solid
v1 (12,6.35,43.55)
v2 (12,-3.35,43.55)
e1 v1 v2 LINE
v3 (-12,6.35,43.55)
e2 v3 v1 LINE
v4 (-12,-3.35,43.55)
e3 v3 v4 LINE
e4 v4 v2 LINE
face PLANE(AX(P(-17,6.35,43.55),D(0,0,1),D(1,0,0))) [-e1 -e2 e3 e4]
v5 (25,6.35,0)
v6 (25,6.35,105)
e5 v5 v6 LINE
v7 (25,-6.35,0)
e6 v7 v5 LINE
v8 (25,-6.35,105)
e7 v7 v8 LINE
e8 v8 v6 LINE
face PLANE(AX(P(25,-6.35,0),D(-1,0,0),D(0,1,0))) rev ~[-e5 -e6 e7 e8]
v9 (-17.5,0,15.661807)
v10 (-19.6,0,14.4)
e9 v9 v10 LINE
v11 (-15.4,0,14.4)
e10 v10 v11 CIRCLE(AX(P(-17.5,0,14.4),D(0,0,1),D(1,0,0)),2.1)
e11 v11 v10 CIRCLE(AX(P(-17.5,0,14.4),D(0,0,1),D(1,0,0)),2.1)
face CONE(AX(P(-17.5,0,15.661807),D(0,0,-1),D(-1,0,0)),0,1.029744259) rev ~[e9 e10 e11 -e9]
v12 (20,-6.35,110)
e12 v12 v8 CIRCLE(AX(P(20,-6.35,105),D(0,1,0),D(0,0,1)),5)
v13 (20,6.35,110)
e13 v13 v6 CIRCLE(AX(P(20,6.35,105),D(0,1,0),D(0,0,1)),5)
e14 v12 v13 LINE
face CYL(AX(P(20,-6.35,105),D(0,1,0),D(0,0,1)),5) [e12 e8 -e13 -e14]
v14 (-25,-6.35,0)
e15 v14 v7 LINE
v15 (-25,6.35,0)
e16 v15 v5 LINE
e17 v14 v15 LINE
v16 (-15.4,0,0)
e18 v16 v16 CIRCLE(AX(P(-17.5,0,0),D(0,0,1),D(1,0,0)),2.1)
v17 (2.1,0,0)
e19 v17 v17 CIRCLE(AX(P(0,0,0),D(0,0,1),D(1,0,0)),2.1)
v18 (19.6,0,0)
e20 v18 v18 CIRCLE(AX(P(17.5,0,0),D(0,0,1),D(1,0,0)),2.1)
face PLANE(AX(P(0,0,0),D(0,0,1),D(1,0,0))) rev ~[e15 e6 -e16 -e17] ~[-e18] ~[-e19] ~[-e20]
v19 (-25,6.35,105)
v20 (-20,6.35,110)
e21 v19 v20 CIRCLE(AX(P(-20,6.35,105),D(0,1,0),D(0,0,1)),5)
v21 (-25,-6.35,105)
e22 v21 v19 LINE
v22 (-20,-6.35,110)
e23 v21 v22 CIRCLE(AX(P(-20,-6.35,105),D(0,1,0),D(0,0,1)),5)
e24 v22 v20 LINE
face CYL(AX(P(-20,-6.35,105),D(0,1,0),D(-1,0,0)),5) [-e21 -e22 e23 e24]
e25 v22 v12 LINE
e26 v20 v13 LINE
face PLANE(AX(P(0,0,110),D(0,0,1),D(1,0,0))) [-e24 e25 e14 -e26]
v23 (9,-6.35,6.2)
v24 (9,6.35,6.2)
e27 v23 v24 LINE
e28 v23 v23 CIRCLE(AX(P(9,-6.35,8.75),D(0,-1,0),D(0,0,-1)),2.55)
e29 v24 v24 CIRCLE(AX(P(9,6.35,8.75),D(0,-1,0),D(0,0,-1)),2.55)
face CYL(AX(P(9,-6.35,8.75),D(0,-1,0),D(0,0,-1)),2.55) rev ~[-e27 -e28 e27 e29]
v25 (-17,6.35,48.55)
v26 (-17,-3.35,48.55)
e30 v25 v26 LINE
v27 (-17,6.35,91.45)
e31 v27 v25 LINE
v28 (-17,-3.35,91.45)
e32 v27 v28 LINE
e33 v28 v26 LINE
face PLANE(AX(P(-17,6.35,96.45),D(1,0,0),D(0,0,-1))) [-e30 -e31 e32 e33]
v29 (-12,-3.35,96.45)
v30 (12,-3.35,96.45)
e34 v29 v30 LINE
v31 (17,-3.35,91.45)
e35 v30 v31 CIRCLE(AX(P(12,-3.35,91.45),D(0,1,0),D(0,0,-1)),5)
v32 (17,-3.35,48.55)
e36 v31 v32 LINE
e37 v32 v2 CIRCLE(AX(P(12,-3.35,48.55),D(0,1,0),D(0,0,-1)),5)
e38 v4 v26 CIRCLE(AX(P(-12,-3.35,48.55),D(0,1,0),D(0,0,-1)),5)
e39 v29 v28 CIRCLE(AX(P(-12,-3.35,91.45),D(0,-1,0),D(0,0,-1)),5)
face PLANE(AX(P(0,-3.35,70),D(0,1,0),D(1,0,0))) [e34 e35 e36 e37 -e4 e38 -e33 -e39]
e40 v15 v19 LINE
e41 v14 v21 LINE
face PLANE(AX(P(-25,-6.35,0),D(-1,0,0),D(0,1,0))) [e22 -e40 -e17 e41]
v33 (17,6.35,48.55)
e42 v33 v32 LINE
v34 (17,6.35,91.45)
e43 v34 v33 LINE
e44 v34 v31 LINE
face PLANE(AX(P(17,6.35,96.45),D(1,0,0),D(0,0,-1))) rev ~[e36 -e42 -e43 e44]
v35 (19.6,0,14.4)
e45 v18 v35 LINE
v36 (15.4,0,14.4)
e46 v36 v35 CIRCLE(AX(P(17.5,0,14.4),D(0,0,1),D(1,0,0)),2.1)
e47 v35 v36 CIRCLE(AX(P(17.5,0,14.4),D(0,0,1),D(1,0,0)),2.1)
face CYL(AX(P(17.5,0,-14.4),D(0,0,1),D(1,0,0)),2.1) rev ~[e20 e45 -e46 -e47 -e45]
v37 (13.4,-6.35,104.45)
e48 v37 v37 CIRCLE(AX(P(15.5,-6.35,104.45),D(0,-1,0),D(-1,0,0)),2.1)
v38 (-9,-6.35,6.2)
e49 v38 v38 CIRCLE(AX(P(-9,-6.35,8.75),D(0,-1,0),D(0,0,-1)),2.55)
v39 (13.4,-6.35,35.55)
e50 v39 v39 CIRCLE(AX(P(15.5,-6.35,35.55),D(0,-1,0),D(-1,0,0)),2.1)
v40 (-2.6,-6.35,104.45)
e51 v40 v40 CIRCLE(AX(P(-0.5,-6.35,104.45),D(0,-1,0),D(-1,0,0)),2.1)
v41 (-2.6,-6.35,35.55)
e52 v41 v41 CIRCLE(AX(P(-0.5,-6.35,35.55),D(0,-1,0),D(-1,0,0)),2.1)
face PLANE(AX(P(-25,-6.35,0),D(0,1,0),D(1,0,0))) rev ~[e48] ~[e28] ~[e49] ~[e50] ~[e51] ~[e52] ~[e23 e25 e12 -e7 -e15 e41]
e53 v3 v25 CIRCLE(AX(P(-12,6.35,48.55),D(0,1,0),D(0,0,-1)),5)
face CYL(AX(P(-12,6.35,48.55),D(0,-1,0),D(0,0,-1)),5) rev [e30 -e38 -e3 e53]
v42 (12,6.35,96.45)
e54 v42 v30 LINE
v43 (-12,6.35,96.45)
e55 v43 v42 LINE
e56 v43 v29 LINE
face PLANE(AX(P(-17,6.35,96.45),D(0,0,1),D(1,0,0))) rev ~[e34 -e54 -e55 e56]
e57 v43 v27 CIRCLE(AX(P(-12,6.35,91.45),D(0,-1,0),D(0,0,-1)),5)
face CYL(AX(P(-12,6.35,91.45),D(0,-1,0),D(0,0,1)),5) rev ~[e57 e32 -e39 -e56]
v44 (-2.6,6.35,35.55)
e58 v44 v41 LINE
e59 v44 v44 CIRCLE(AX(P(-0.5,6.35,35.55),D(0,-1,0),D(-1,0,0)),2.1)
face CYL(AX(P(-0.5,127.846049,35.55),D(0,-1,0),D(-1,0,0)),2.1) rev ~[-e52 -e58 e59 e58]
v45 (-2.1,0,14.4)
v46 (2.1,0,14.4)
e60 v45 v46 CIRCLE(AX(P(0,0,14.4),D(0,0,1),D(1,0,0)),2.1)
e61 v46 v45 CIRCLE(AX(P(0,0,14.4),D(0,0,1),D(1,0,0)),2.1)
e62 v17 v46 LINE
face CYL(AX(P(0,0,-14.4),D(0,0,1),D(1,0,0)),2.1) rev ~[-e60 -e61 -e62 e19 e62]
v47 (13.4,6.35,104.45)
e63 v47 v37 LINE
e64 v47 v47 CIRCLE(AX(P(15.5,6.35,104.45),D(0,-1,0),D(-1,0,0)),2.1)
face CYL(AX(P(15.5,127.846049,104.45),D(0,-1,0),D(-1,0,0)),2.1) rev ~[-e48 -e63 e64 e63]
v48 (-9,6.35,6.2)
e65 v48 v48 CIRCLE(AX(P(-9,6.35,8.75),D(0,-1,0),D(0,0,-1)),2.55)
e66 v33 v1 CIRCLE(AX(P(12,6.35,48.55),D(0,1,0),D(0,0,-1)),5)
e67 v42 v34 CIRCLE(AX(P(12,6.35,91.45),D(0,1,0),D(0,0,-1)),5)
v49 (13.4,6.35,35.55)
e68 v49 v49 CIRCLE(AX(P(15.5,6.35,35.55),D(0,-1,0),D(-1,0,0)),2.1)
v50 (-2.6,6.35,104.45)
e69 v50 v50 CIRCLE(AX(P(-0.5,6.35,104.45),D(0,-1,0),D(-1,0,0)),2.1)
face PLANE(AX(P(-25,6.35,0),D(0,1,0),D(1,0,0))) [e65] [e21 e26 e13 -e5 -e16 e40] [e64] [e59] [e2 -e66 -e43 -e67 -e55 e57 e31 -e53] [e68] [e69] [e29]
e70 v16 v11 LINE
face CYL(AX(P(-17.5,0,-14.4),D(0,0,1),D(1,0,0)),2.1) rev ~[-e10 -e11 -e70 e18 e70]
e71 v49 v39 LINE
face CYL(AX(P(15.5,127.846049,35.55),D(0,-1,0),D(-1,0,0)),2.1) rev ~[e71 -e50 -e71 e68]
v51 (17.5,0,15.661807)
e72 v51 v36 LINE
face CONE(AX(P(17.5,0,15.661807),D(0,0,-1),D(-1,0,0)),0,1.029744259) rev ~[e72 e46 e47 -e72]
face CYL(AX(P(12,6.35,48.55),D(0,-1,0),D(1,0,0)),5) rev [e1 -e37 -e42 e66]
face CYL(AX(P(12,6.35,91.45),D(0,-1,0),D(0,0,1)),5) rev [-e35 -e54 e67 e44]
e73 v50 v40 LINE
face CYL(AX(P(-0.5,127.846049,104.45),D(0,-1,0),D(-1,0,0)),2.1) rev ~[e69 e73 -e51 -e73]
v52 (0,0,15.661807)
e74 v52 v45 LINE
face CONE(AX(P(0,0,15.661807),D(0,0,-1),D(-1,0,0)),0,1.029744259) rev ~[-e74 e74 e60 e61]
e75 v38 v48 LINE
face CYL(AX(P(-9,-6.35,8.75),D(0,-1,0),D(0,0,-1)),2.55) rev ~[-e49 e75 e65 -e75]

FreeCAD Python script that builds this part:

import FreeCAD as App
import Part
import Sketcher
from FreeCAD import Vector
Q = App.Units.Quantity


def edges_at(feature, points):
    """Names of the edges that pass closest to the given points."""
    edges = feature.Shape.Edges
    near = lambda p: min(range(len(edges)), key=lambda i: edges[i].distToShape(Part.Vertex(*p))[0])
    return sorted({f"Edge{near(p) + 1}" for p in points})


def add_polygon(sketch, points):
    """Adds a closed chain of lines whose ends are joined by coincident constraints."""
    first, n = sketch.GeometryCount, len(points)
    for a, b in zip(points, points[1:] + points[:1]):
        sketch.addGeometry(Part.LineSegment(App.Vector(*a, 0), App.Vector(*b, 0)), False)
    for i in range(n):
        sketch.addConstraint(Sketcher.Constraint("Coincident", first + i, 2, first + (i + 1) % n, 1))

doc = App.newDocument("Part")
body = doc.addObject("PartDesign::Body", "Body")

# Sketch on XY plane
sketch1 = doc.addObject("Sketcher::SketchObject", "Sketch")
body.addObject(sketch1)
sketch1.AttachmentSupport = (doc.XY_Plane, [""])
sketch1.MapMode = "FlatFace"
add_polygon(sketch1, [(-25, 6), (-25, -6), (25, -6), (25, 6)])  # lines 0-3
sketch1.addConstraint([
    Sketcher.Constraint("Vertical", 0),
    Sketcher.Constraint("Horizontal", 1),
    Sketcher.Constraint("Vertical", 2),
    Sketcher.Constraint("Horizontal", 3),
    Sketcher.Constraint("Symmetric", 0, 2, 2, 2, -1, 1),
    Sketcher.Constraint("DistanceX", 1, 1, 1, 2, Q("50 mm")),
    Sketcher.Constraint("DistanceY", 0, 2, 0, 1, Q("12.7 mm")),
])
pad1 = doc.addObject("PartDesign::Pad", "Pad")
body.addObject(pad1)
pad1.Profile = sketch1
pad1.Length = 110

# Sketch on XY plane
sketch2 = doc.addObject("Sketcher::SketchObject", "Sketch001")
body.addObject(sketch2)
sketch2.AttachmentSupport = (doc.XY_Plane, [""])
sketch2.MapMode = "FlatFace"
sketch2.addGeometry([
    Part.Circle(Vector(17.5, 0, 0), Vector(0, 0, 1), 2.1),
    Part.Circle(Vector(0, 0, 0), Vector(0, 0, 1), 2.1),
    Part.Circle(Vector(-17.5, 0, 0), Vector(0, 0, 1), 2.1),
], False)
sketch2.addConstraint([
    Sketcher.Constraint("Coincident", 1, 3, -1, 1),
    Sketcher.Constraint("Equal", 0, 1),
    Sketcher.Constraint("Equal", 1, 2),
    Sketcher.Constraint("Symmetric", 0, 3, 2, 3, -1, 1),
    Sketcher.Constraint("PointOnObject", 0, 3, -1),
    Sketcher.Constraint("Diameter", 0, Q("4.2 mm")),
    Sketcher.Constraint("DistanceX", 2, 3, 0, 3, Q("35 mm")),
])
doc.recompute()
hole = doc.addObject("PartDesign::Hole", "Hole")
body.addObject(hole)
hole.Profile = sketch2
hole.ThreadType = "None"
hole.Diameter = 4.2
hole.DepthType = "Dimension"
hole.Depth = 14.4
hole.DrillPoint = "Angled"
hole.DrillPointAngle = 118
hole.Reversed = True

# Sketch on XZ plane
sketch3 = doc.addObject("Sketcher::SketchObject", "Sketch002")
body.addObject(sketch3)
sketch3.AttachmentSupport = (doc.XZ_Plane, [""])
sketch3.MapMode = "FlatFace"
sketch3.AttachmentOffset = App.Placement(Vector(0, 0, -6.35), App.Rotation())
sketch3.addGeometry([
    Part.Circle(Vector(-0.5, 35.5, 0), Vector(0, 0, 1), 2.1),
    Part.Circle(Vector(15.5, 35.5, 0), Vector(0, 0, 1), 2.1),
    Part.Circle(Vector(15.5, 104.5, 0), Vector(0, 0, 1), 2.1),
    Part.Circle(Vector(-0.5, 104.5, 0), Vector(0, 0, 1), 2.1),
], False)
sketch3.addConstraint([
    Sketcher.Constraint("Equal", 0, 1),
    Sketcher.Constraint("Equal", 1, 2),
    Sketcher.Constraint("Equal", 2, 3),
    Sketcher.Constraint("Horizontal", 0, 3, 1, 3),
    Sketcher.Constraint("Horizontal", 2, 3, 3, 3),
    Sketcher.Constraint("Vertical", 1, 3, 2, 3),
    Sketcher.Constraint("Vertical", 0, 3, 3, 3),
    Sketcher.Constraint("Diameter", 0, Q("4.2 mm")),
    Sketcher.Constraint("DistanceX", 0, 3, 1, 3, Q("16 mm")),
    Sketcher.Constraint("DistanceX", 0, 3, -1, 1, Q("0.5 mm")),
    Sketcher.Constraint("DistanceY", 1, 3, 2, 3, Q("68.9 mm")),
    Sketcher.Constraint("DistanceY", -1, 1, 0, 3, Q("35.55 mm")),
])
doc.recompute()
hole2 = doc.addObject("PartDesign::Hole", "Hole001")
body.addObject(hole2)
hole2.Profile = sketch3
hole2.ThreadType = "None"
hole2.Diameter = 4.2
hole2.DepthType = "ThroughAll"
hole2.Reversed = True

# Sketch on XZ plane
sketch4 = doc.addObject("Sketcher::SketchObject", "Sketch003")
body.addObject(sketch4)
sketch4.AttachmentSupport = (doc.XZ_Plane, [""])
sketch4.MapMode = "FlatFace"
sketch4.AttachmentOffset = App.Placement(Vector(0, 0, 6.35), App.Rotation())
sketch4.addGeometry([
    Part.Circle(Vector(-9, 8.8, 0), Vector(0, 0, 1), 2.5),
    Part.Circle(Vector(9, 8.8, 0), Vector(0, 0, 1), 2.5),
], False)
sketch4.addConstraint([
    Sketcher.Constraint("Equal", 0, 1),
    Sketcher.Constraint("Symmetric", 0, 3, 1, 3, -2),
    Sketcher.Constraint("Diameter", 0, Q("5.1 mm")),
    Sketcher.Constraint("DistanceX", 0, 3, -1, 1, Q("9 mm")),
    Sketcher.Constraint("DistanceY", -1, 1, 0, 3, Q("8.75 mm")),
])
pocket1 = doc.addObject("PartDesign::Pocket", "Pocket")
body.addObject(pocket1)
pocket1.Profile = sketch4
pocket1.Type = "ThroughAll"

# Sketch on XZ plane
sketch5 = doc.addObject("Sketcher::SketchObject", "Sketch004")
body.addObject(sketch5)
sketch5.AttachmentSupport = (doc.XZ_Plane, [""])
sketch5.MapMode = "FlatFace"
sketch5.AttachmentOffset = App.Placement(Vector(0, 0, -6.35), App.Rotation())
add_polygon(sketch5, [(-17, 44), (-17, 96), (17, 96), (17, 44)])  # lines 0-3
sketch5.addConstraint([
    Sketcher.Constraint("Vertical", 0),
    Sketcher.Constraint("Horizontal", 1),
    Sketcher.Constraint("Vertical", 2),
    Sketcher.Constraint("Horizontal", 3),
    Sketcher.Constraint("DistanceX", 1, 1, 1, 2, Q("34 mm")),
    Sketcher.Constraint("DistanceY", 0, 1, 0, 2, Q("52.9 mm")),
    Sketcher.Constraint("DistanceX", 0, 2, -1, 1, Q("17 mm")),
    Sketcher.Constraint("DistanceY", -1, 1, 0, 2, Q("96.45 mm")),
])
pocket2 = doc.addObject("PartDesign::Pocket", "Pocket001")
body.addObject(pocket2)
pocket2.Profile = sketch5
pocket2.Length = 9.7
pocket2.Reversed = True
doc.recompute()

fillet = doc.addObject("PartDesign::Fillet", "Fillet")
body.addObject(fillet)
fillet.Base = (pocket2, edges_at(pocket2, [
    (-25, 0, 110),
    (25, 0, 110),
    (-17, 1.5, 96.45),
    (-17, 1.5, 43.55),
    (17, 1.5, 43.55),
    (17, 1.5, 96.45),
]))
fillet.Radius = 5

doc.recompute()
